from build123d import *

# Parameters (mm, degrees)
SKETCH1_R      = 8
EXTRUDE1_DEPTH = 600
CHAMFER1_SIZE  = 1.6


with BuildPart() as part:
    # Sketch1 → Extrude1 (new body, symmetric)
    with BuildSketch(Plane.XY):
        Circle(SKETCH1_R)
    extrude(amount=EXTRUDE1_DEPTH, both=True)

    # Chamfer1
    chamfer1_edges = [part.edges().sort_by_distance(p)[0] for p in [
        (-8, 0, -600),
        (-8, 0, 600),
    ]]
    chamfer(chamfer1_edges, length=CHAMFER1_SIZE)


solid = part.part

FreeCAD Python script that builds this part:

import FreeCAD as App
import Part
import Sketcher


def edges_at(feature, points):
    """Names of the edges that pass closest to the given points."""
    edges = feature.Shape.Edges
    near = lambda p: min(range(len(edges)), key=lambda i: edges[i].distToShape(Part.Vertex(*p))[0])
    return sorted({f"Edge{near(p) + 1}" for p in points})

doc = App.newDocument("Part")
body = doc.addObject("PartDesign::Body", "Body")

# Sketch on XY plane
sketch1 = body.newObject("Sketcher::SketchObject", "Sketch")
sketch1.AttachmentSupport = (doc.getObject("XY_Plane"), [""])
sketch1.MapMode = "FlatFace"
sketch1.addGeometry(Part.Circle(App.Vector(0, 0, 0), App.Vector(0, 0, 1), 8), False)
sketch1.addConstraint(Sketcher.Constraint("Coincident", 0, 3, -1, 1))
sketch1.addConstraint(Sketcher.Constraint("Diameter", 0, 16.0))
pad1 = body.newObject("PartDesign::Pad", "Pad")
pad1.Profile = sketch1
pad1.Length = 1200
pad1.Midplane = True
doc.recompute()

chamfer = body.newObject("PartDesign::Chamfer", "Chamfer")
chamfer.Base = (pad1, edges_at(pad1, [(-8, 0, -600), (-8, 0, 600)]))
chamfer.Size = 1.6

doc.recompute()
